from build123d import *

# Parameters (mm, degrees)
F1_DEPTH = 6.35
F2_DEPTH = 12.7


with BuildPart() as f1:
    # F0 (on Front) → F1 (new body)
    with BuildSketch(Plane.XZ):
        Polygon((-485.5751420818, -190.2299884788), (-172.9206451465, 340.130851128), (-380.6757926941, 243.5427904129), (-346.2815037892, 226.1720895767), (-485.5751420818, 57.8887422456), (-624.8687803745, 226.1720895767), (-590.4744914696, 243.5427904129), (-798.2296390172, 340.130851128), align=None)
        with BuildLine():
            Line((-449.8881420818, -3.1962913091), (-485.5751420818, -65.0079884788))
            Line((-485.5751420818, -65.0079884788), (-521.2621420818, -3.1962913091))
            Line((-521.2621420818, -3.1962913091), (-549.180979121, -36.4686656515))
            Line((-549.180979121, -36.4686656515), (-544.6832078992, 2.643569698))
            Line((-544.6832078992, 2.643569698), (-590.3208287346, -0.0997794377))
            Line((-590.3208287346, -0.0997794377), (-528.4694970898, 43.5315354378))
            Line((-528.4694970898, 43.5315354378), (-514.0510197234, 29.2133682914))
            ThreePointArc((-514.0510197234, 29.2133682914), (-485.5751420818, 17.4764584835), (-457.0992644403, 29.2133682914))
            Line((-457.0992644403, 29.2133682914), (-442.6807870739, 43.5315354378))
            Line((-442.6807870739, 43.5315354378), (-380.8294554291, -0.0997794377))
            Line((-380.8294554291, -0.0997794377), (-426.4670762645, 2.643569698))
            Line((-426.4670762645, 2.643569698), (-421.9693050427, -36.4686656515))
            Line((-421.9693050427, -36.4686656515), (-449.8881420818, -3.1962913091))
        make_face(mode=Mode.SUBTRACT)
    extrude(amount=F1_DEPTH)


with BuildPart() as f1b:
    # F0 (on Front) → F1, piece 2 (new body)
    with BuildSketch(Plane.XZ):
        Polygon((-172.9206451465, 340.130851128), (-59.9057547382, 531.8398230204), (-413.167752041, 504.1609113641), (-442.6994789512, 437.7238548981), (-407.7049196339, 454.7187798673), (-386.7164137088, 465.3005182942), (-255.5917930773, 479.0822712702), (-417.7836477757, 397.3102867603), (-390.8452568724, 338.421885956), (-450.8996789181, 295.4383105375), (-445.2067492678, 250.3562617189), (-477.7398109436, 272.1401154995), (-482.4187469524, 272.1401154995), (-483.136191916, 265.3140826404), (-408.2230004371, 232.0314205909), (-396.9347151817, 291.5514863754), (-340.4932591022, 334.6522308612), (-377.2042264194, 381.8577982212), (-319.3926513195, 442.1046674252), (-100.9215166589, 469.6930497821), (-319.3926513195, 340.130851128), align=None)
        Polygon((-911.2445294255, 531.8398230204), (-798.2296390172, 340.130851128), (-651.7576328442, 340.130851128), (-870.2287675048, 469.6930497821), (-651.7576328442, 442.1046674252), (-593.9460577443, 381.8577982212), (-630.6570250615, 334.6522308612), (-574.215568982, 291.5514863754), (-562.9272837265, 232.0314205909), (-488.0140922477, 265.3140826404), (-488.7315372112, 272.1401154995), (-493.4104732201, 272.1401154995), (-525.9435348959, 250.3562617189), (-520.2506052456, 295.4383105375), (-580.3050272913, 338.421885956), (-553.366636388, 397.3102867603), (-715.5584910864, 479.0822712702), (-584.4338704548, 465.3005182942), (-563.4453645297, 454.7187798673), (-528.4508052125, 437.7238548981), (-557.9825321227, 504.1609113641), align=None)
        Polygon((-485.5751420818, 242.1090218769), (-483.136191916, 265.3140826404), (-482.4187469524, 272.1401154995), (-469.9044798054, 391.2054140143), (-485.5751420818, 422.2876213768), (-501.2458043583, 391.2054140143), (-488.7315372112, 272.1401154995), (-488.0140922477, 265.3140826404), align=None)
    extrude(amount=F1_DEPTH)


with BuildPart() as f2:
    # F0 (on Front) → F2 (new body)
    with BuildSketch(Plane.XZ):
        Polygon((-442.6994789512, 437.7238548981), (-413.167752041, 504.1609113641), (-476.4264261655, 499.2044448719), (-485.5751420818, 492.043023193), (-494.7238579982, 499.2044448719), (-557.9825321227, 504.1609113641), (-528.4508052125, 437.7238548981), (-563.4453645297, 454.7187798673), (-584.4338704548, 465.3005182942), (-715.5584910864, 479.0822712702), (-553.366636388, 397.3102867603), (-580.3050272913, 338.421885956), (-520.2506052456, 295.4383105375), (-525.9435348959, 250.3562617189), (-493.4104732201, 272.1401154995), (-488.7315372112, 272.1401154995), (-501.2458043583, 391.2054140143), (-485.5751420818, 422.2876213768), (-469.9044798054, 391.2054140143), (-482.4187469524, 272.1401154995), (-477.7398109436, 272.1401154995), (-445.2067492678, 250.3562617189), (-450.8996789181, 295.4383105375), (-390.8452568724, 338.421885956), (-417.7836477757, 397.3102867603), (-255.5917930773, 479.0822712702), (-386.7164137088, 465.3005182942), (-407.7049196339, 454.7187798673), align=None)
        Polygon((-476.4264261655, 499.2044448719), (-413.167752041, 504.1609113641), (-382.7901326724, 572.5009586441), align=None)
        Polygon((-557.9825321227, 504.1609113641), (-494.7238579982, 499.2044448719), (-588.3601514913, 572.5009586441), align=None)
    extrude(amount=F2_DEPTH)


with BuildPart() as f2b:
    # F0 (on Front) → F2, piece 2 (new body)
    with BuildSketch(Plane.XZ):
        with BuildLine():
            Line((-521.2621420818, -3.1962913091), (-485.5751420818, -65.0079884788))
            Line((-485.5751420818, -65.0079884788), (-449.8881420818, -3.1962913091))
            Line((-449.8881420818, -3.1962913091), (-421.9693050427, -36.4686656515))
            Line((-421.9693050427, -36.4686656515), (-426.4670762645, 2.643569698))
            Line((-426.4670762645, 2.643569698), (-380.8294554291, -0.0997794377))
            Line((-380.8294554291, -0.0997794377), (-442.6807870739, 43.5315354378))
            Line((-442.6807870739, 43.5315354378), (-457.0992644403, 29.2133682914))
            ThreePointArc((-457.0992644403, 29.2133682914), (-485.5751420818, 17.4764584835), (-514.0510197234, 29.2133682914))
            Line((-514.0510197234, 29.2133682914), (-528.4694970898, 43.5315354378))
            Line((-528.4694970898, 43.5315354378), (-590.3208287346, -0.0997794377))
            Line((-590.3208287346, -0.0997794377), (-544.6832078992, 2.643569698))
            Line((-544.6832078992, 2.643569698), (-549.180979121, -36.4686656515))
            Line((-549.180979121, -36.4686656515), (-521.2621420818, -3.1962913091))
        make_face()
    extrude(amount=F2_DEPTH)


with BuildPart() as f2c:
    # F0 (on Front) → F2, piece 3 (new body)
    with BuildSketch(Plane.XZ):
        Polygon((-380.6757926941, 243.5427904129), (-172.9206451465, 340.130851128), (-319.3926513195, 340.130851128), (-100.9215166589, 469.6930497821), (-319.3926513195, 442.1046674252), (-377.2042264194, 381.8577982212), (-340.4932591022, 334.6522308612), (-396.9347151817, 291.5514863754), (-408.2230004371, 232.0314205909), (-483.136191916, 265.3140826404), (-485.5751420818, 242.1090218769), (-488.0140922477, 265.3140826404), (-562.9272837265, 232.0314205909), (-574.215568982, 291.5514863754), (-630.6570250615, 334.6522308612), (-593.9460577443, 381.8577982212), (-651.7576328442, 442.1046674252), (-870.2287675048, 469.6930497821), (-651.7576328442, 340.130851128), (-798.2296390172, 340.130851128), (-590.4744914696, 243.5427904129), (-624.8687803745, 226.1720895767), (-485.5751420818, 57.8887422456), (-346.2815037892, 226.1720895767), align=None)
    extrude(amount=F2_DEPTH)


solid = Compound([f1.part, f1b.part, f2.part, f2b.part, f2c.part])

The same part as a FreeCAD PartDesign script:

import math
import FreeCAD as App
import Part
import Sketcher

V = App.Vector
Q = App.Units.Quantity

doc = App.newDocument("Part")
body = doc.addObject("PartDesign::Body", "Body")

sketch1 = doc.addObject("Sketcher::SketchObject", "Sketch")
body.addObject(sketch1)
sketch1.AttachmentSupport = (doc.XZ_Plane, [""])
sketch1.MapMode = "FlatFace"
sketch1.addGeometry([
    Part.LineSegment(V(-486, -190, 0), V(-173, 340, 0)),
    Part.LineSegment(V(-173, 340, 0), V(-381, 244, 0)),
    Part.LineSegment(V(-381, 244, 0), V(-346, 226, 0)),
    Part.LineSegment(V(-346, 226, 0), V(-486, 58, 0)),
    Part.LineSegment(V(-486, 58, 0), V(-625, 226, 0)),
    Part.LineSegment(V(-625, 226, 0), V(-590, 244, 0)),
    Part.LineSegment(V(-590, 244, 0), V(-798, 340, 0)),
    Part.LineSegment(V(-798, 340, 0), V(-486, -190, 0)),
    Part.LineSegment(V(-422, -36, 0), V(-450, -3, 0)),
    Part.LineSegment(V(-450, -3, 0), V(-486, -65, 0)),
    Part.LineSegment(V(-486, -65, 0), V(-521, -3, 0)),
    Part.LineSegment(V(-521, -3, 0), V(-549, -36, 0)),
    Part.LineSegment(V(-549, -36, 0), V(-545, 3, 0)),
    Part.LineSegment(V(-545, 3, 0), V(-590, 0, 0)),
    Part.LineSegment(V(-590, 0, 0), V(-528, 44, 0)),
    Part.LineSegment(V(-528, 44, 0), V(-514, 29, 0)),
    Part.ArcOfCircle(Part.Circle(V(-486, 58, 0), V(0, 0, 1), 40), math.radians(-135), math.radians(-45)),
    Part.LineSegment(V(-457, 29, 0), V(-443, 44, 0)),
    Part.LineSegment(V(-443, 44, 0), V(-381, 0, 0)),
    Part.LineSegment(V(-381, 0, 0), V(-426, 3, 0)),
    Part.LineSegment(V(-426, 3, 0), V(-422, -36, 0)),
], False)
sketch1.addConstraint([
    Sketcher.Constraint("Coincident", 0, 2, 1, 1),
    Sketcher.Constraint("Coincident", 1, 2, 2, 1),
    Sketcher.Constraint("Coincident", 2, 2, 3, 1),
    Sketcher.Constraint("Coincident", 3, 2, 4, 1),
    Sketcher.Constraint("Coincident", 4, 2, 5, 1),
    Sketcher.Constraint("Coincident", 5, 2, 6, 1),
    Sketcher.Constraint("Coincident", 6, 2, 7, 1),
    Sketcher.Constraint("Coincident", 7, 2, 0, 1),
    Sketcher.Constraint("Coincident", 8, 2, 9, 1),
    Sketcher.Constraint("Coincident", 9, 2, 10, 1),
    Sketcher.Constraint("Coincident", 10, 2, 11, 1),
    Sketcher.Constraint("Coincident", 11, 2, 12, 1),
    Sketcher.Constraint("Coincident", 12, 2, 13, 1),
    Sketcher.Constraint("Coincident", 13, 2, 14, 1),
    Sketcher.Constraint("Coincident", 14, 2, 15, 1),
    Sketcher.Constraint("Tangent", 15, 2, 16, 1),
    Sketcher.Constraint("Tangent", 16, 2, 17, 1),
    Sketcher.Constraint("Coincident", 17, 2, 18, 1),
    Sketcher.Constraint("Coincident", 18, 2, 19, 1),
    Sketcher.Constraint("Coincident", 19, 2, 20, 1),
    Sketcher.Constraint("Coincident", 20, 2, 8, 1),
    Sketcher.Constraint("Coincident", 3, 2, 16, 3),
    Sketcher.Constraint("Horizontal", 2, 2, 4, 2),
    Sketcher.Constraint("Horizontal", 1, 2, 5, 2),
    Sketcher.Constraint("Horizontal", 0, 2, 6, 2),
    Sketcher.Constraint("Horizontal", 8, 2, 10, 2),
    Sketcher.Constraint("Horizontal", 15, 2, 16, 2),
    Sketcher.Constraint("Horizontal", 14, 2, 17, 2),
    Sketcher.Constraint("Horizontal", 13, 2, 18, 2),
    Sketcher.Constraint("Horizontal", 12, 2, 19, 2),
    Sketcher.Constraint("Horizontal", 11, 2, 20, 2),
    Sketcher.Constraint("Vertical", 3, 2, 7, 2),
    Sketcher.Constraint("Vertical", 7, 2, 9, 2),
    Sketcher.Constraint("Equal", 3, 4),
    Sketcher.Constraint("Equal", 2, 5),
    Sketcher.Constraint("Equal", 1, 6),
    Sketcher.Constraint("Equal", 9, 10),
    Sketcher.Constraint("Equal", 8, 11),
    Sketcher.Constraint("Equal", 14, 18),
    Sketcher.Constraint("Equal", 13, 19),
    Sketcher.Constraint("Angle", 8, Q("130 deg")),
    Sketcher.Constraint("Angle", 9, Q("-120 deg")),
    Sketcher.Constraint("Distance", 13, Q("1.8 in")),
    Sketcher.Constraint("Distance", 15, Q("0.8 in")),
    Sketcher.Constraint("Angle", 14, Q("35.2 deg")),
    Sketcher.Constraint("Angle", 15, Q("-44.8 deg")),
    Sketcher.Constraint("Distance", 8, Q("1.71 in")),
    Sketcher.Constraint("Distance", 9, Q("2.81 in")),
    Sketcher.Constraint("Distance", 12, Q("1.55 in")),
    Sketcher.Constraint("Distance", 14, Q("2.98 in")),
    Sketcher.Constraint("Angle", 12, Q("83.44 deg")),
    Sketcher.Constraint("Angle", 13, Q("-176.56 deg")),
    Sketcher.Constraint("DistanceY", 7, 2, 9, 2, Q("4.93 in")),
    Sketcher.Constraint("DistanceY", 2, 2, 1, 2, 17.370701),
    Sketcher.Constraint("DistanceX", 5, 2, 1, 2, 209.798699),
    Sketcher.Constraint("DistanceY", -1, 1, 0, 2, 340.130851),
    Sketcher.Constraint("DistanceY", -1, 1, 1, 2, 243.54279),
    Sketcher.Constraint("DistanceX", 4, 2, -1, 1, 624.86878),
    Sketcher.Constraint("DistanceX", 5, 2, -1, 1, 590.474491),
    Sketcher.Constraint("DistanceX", 6, 2, -1, 1, 798.229639),
    Sketcher.Constraint("DistanceY", 7, 2, -1, 1, 190.229988),
])
pad1 = doc.addObject("PartDesign::Pad", "Pad")
body.addObject(pad1)
pad1.Profile = sketch1
pad1.Length = Q("0.25 in")
body2 = doc.addObject("PartDesign::Body", "Body001")

sketch2 = doc.addObject("Sketcher::SketchObject", "Sketch001")
body2.addObject(sketch2)
sketch2.AttachmentSupport = (doc.getObject("XZ_Plane001"), [""])
sketch2.MapMode = "FlatFace"
sketch2.addGeometry([
    Part.LineSegment(V(-172.9, 340.1, 0), V(-59.9, 531.8, 0)),
    Part.LineSegment(V(-59.9, 531.8, 0), V(-413.2, 504.2, 0)),
    Part.LineSegment(V(-413.2, 504.2, 0), V(-442.7, 437.7, 0)),
    Part.LineSegment(V(-442.7, 437.7, 0), V(-407.7, 454.7, 0)),
    Part.LineSegment(V(-407.7, 454.7, 0), V(-386.7, 465.3, 0)),
    Part.LineSegment(V(-386.7, 465.3, 0), V(-255.6, 479.1, 0)),
    Part.LineSegment(V(-255.6, 479.1, 0), V(-417.8, 397.3, 0)),
    Part.LineSegment(V(-417.8, 397.3, 0), V(-390.8, 338.4, 0)),
    Part.LineSegment(V(-390.8, 338.4, 0), V(-450.9, 295.4, 0)),
    Part.LineSegment(V(-450.9, 295.4, 0), V(-445.2, 250.4, 0)),
    Part.LineSegment(V(-445.2, 250.4, 0), V(-477.7, 272.1, 0)),
    Part.LineSegment(V(-477.7, 272.1, 0), V(-482.4, 272.1, 0)),
    Part.LineSegment(V(-482.4, 272.1, 0), V(-469.9, 391.2, 0)),
    Part.LineSegment(V(-469.9, 391.2, 0), V(-485.6, 422.3, 0)),
    Part.LineSegment(V(-485.6, 422.3, 0), V(-501.2, 391.2, 0)),
    Part.LineSegment(V(-501.2, 391.2, 0), V(-488.7, 272.1, 0)),
    Part.LineSegment(V(-488.7, 272.1, 0), V(-493.4, 272.1, 0)),
    Part.LineSegment(V(-493.4, 272.1, 0), V(-525.9, 250.4, 0)),
    Part.LineSegment(V(-525.9, 250.4, 0), V(-520.3, 295.4, 0)),
    Part.LineSegment(V(-520.3, 295.4, 0), V(-580.3, 338.4, 0)),
    Part.LineSegment(V(-580.3, 338.4, 0), V(-553.4, 397.3, 0)),
    Part.LineSegment(V(-553.4, 397.3, 0), V(-715.6, 479.1, 0)),
    Part.LineSegment(V(-715.6, 479.1, 0), V(-584.4, 465.3, 0)),
    Part.LineSegment(V(-584.4, 465.3, 0), V(-563.4, 454.7, 0)),
    Part.LineSegment(V(-563.4, 454.7, 0), V(-528.5, 437.7, 0)),
    Part.LineSegment(V(-528.5, 437.7, 0), V(-558, 504.2, 0)),
    Part.LineSegment(V(-558, 504.2, 0), V(-911.2, 531.8, 0)),
    Part.LineSegment(V(-911.2, 531.8, 0), V(-798.2, 340.1, 0)),
    Part.LineSegment(V(-798.2, 340.1, 0), V(-651.8, 340.1, 0)),
    Part.LineSegment(V(-651.8, 340.1, 0), V(-870.2, 469.7, 0)),
    Part.LineSegment(V(-870.2, 469.7, 0), V(-651.8, 442.1, 0)),
    Part.LineSegment(V(-651.8, 442.1, 0), V(-593.9, 381.9, 0)),
    Part.LineSegment(V(-593.9, 381.9, 0), V(-630.7, 334.7, 0)),
    Part.LineSegment(V(-630.7, 334.7, 0), V(-574.2, 291.6, 0)),
    Part.LineSegment(V(-574.2, 291.6, 0), V(-562.9, 232, 0)),
    Part.LineSegment(V(-562.9, 232, 0), V(-488, 265.3, 0)),
    Part.LineSegment(V(-488, 265.3, 0), V(-485.6, 242.1, 0)),
    Part.LineSegment(V(-485.6, 242.1, 0), V(-483.1, 265.3, 0)),
    Part.LineSegment(V(-483.1, 265.3, 0), V(-408.2, 232, 0)),
    Part.LineSegment(V(-408.2, 232, 0), V(-396.9, 291.6, 0)),
    Part.LineSegment(V(-396.9, 291.6, 0), V(-340.5, 334.7, 0)),
    Part.LineSegment(V(-340.5, 334.7, 0), V(-377.2, 381.9, 0)),
    Part.LineSegment(V(-377.2, 381.9, 0), V(-319.4, 442.1, 0)),
    Part.LineSegment(V(-319.4, 442.1, 0), V(-100.9, 469.7, 0)),
    Part.LineSegment(V(-100.9, 469.7, 0), V(-319.4, 340.1, 0)),
    Part.LineSegment(V(-319.4, 340.1, 0), V(-172.9, 340.1, 0)),
], False)
sketch2.addConstraint([
    Sketcher.Constraint("Coincident", 0, 2, 1, 1),
    Sketcher.Constraint("Coincident", 1, 2, 2, 1),
    Sketcher.Constraint("Coincident", 2, 2, 3, 1),
    Sketcher.Constraint("Coincident", 3, 2, 4, 1),
    Sketcher.Constraint("Coincident", 4, 2, 5, 1),
    Sketcher.Constraint("Coincident", 5, 2, 6, 1),
    Sketcher.Constraint("Coincident", 6, 2, 7, 1),
    Sketcher.Constraint("Coincident", 7, 2, 8, 1),
    Sketcher.Constraint("Coincident", 8, 2, 9, 1),
    Sketcher.Constraint("Coincident", 9, 2, 10, 1),
    Sketcher.Constraint("Coincident", 10, 2, 11, 1),
    Sketcher.Constraint("Coincident", 11, 2, 12, 1),
    Sketcher.Constraint("Coincident", 12, 2, 13, 1),
    Sketcher.Constraint("Coincident", 13, 2, 14, 1),
    Sketcher.Constraint("Coincident", 14, 2, 15, 1),
    Sketcher.Constraint("Coincident", 15, 2, 16, 1),
    Sketcher.Constraint("Coincident", 16, 2, 17, 1),
    Sketcher.Constraint("Coincident", 17, 2, 18, 1),
    Sketcher.Constraint("Coincident", 18, 2, 19, 1),
    Sketcher.Constraint("Coincident", 19, 2, 20, 1),
    Sketcher.Constraint("Coincident", 20, 2, 21, 1),
    Sketcher.Constraint("Coincident", 21, 2, 22, 1),
    Sketcher.Constraint("Coincident", 22, 2, 23, 1),
    Sketcher.Constraint("Coincident", 23, 2, 24, 1),
    Sketcher.Constraint("Coincident", 24, 2, 25, 1),
    Sketcher.Constraint("Coincident", 25, 2, 26, 1),
    Sketcher.Constraint("Coincident", 26, 2, 27, 1),
    Sketcher.Constraint("Coincident", 27, 2, 28, 1),
    Sketcher.Constraint("Coincident", 28, 2, 29, 1),
    Sketcher.Constraint("Coincident", 29, 2, 30, 1),
    Sketcher.Constraint("Coincident", 30, 2, 31, 1),
    Sketcher.Constraint("Coincident", 31, 2, 32, 1),
    Sketcher.Constraint("Coincident", 32, 2, 33, 1),
    Sketcher.Constraint("Coincident", 33, 2, 34, 1),
    Sketcher.Constraint("Coincident", 34, 2, 35, 1),
    Sketcher.Constraint("Coincident", 35, 2, 36, 1),
    Sketcher.Constraint("Coincident", 36, 2, 37, 1),
    Sketcher.Constraint("Coincident", 37, 2, 38, 1),
    Sketcher.Constraint("Coincident", 38, 2, 39, 1),
    Sketcher.Constraint("Coincident", 39, 2, 40, 1),
    Sketcher.Constraint("Coincident", 40, 2, 41, 1),
    Sketcher.Constraint("Coincident", 41, 2, 42, 1),
    Sketcher.Constraint("Coincident", 42, 2, 43, 1),
    Sketcher.Constraint("Coincident", 43, 2, 44, 1),
    Sketcher.Constraint("Coincident", 44, 2, 45, 1),
    Sketcher.Constraint("Coincident", 45, 2, 0, 1),
    Sketcher.Constraint("Horizontal", 11),
    Sketcher.Constraint("Horizontal", 16),
    Sketcher.Constraint("Horizontal", 28),
    Sketcher.Constraint("Horizontal", 45),
    Sketcher.Constraint("Parallel", 4, 6),
    Sketcher.Constraint("Perpendicular", 6, 13),
    Sketcher.Constraint("Perpendicular", 5, 15),
    Sketcher.Constraint("Perpendicular", 14, 21),
    Sketcher.Constraint("Perpendicular", 12, 22),
    Sketcher.Constraint("Parallel", 21, 23),
    Sketcher.Constraint("Perpendicular", 18, 30),
    Sketcher.Constraint("Parallel", 15, 36),
    Sketcher.Constraint("Perpendicular", 22, 37),
    Sketcher.Constraint("Perpendicular", 9, 43),
    Sketcher.Constraint("Horizontal", 12, 2, 14, 2),
    Sketcher.Constraint("Horizontal", 11, 2, 15, 2),
    Sketcher.Constraint("Horizontal", 9, 2, 17, 2),
    Sketcher.Constraint("Horizontal", 8, 2, 18, 2),
    Sketcher.Constraint("Horizontal", 7, 2, 19, 2),
    Sketcher.Constraint("Horizontal", 6, 2, 20, 2),
    Sketcher.Constraint("Horizontal", 5, 2, 21, 2),
    Sketcher.Constraint("Horizontal", 4, 2, 22, 2),
    Sketcher.Constraint("Horizontal", 3, 2, 23, 2),
    Sketcher.Constraint("Horizontal", 2, 2, 24, 2),
    Sketcher.Constraint("Horizontal", 1, 2, 25, 2),
    Sketcher.Constraint("Horizontal", 0, 2, 26, 2),
    Sketcher.Constraint("Horizontal", 35, 2, 37, 2),
    Sketcher.Constraint("Horizontal", 34, 2, 38, 2),
    Sketcher.Constraint("Horizontal", 33, 2, 39, 2),
    Sketcher.Constraint("Horizontal", 32, 2, 40, 2),
    Sketcher.Constraint("Horizontal", 31, 2, 41, 2),
    Sketcher.Constraint("Horizontal", 30, 2, 42, 2),
    Sketcher.Constraint("Horizontal", 29, 2, 43, 2),
    Sketcher.Constraint("Horizontal", 28, 2, 44, 2),
    Sketcher.Constraint("Vertical", 28, 2, 30, 2),
    Sketcher.Constraint("Vertical", 13, 2, 36, 2),
    Sketcher.Constraint("Vertical", 42, 2, 44, 2),
    Sketcher.Constraint("Equal", 11, 16),
    Sketcher.Constraint("Equal", 28, 45),
    Sketcher.Constraint("Equal", 13, 14),
    Sketcher.Constraint("Equal", 12, 15),
    Sketcher.Constraint("Equal", 10, 17),
    Sketcher.Constraint("Equal", 8, 19),
    Sketcher.Constraint("Equal", 7, 20),
    Sketcher.Constraint("Equal", 3, 24),
    Sketcher.Constraint("Equal", 2, 25),
    Sketcher.Constraint("Equal", 1, 26),
    Sketcher.Constraint("Equal", 0, 27),
    Sketcher.Constraint("Equal", 35, 38),
    Sketcher.Constraint("Equal", 34, 39),
    Sketcher.Constraint("Equal", 33, 40),
    Sketcher.Constraint("Equal", 32, 41),
    Sketcher.Constraint("Equal", 31, 42),
    Sketcher.Constraint("Distance", 29, Q("10 in")),
    Sketcher.Constraint("Angle", 5, Q("6 deg")),
    Sketcher.Constraint("Distance", 7, 64.757398),
    Sketcher.Constraint("DistanceY", -1, 1, 31, 2, 381.857798),
    Sketcher.Constraint("DistanceX", 38, 2, -1, 1, 408.223),
    Sketcher.Constraint("DistanceY", 7, 2, 6, 2, 58.888401),
    Sketcher.Constraint("DistanceX", 8, 2, 2, 2, 8.2002),
    Sketcher.Constraint("DistanceX", 9, 2, 6, 2, 27.423101),
    Sketcher.Constraint("DistanceX", 11, 2, 6, 2, 64.635099),
    Sketcher.Constraint("DistanceX", 12, 2, 2, 2, 27.205001),
    Sketcher.Constraint("DistanceY", 27, 2, 29, 2, 129.562199),
    Sketcher.Constraint("DistanceY", 33, 2, 19, 2, 46.8704),
    Sketcher.Constraint("DistanceX", 35, 2, 37, 2, 4.8779),
    Sketcher.Constraint("DistanceY", 38, 2, 36, 2, 10.077601),
    Sketcher.Constraint("Distance", 2, 72.70492),
    Sketcher.Constraint("Distance", 3, 38.903042),
    Sketcher.Constraint("Distance", 5, 131.846892),
    Sketcher.Constraint("Distance", 10, 39.152732),
    Sketcher.Constraint("Distance", 33, 71.016281),
    Sketcher.Constraint("Distance", 34, 60.58105),
    Sketcher.Constraint("Distance", 35, 81.97391),
    Sketcher.Constraint("DistanceX", 11, 2, 11, 1, 4.678936),
    Sketcher.Constraint("DistanceX", 28, 1, 28, 2, 146.472006),
    Sketcher.Constraint("DistanceY", -1, 1, 1, 2, 504.160911),
    Sketcher.Constraint("DistanceX", 2, 2, -1, 1, 442.699479),
    Sketcher.Constraint("DistanceX", 3, 2, -1, 1, 407.70492),
    Sketcher.Constraint("DistanceY", -1, 1, 3, 2, 454.71878),
    Sketcher.Constraint("DistanceY", -1, 1, 4, 2, 465.300518),
    Sketcher.Constraint("DistanceY", -1, 1, 8, 2, 295.438311),
    Sketcher.Constraint("DistanceX", 9, 2, -1, 1, 445.206749),
    Sketcher.Constraint("DistanceY", -1, 1, 9, 2, 250.356262),
    Sketcher.Constraint("DistanceY", -1, 1, 13, 2, 422.287621),
    Sketcher.Constraint("DistanceX", 26, 2, -1, 1, 911.244529),
    Sketcher.Constraint("DistanceX", 27, 2, -1, 1, 798.229639),
    Sketcher.Constraint("DistanceY", -1, 1, 27, 2, 340.130851),
    Sketcher.Constraint("DistanceY", -1, 1, 32, 2, 334.652231),
    Sketcher.Constraint("DistanceX", 33, 2, -1, 1, 574.215569),
    Sketcher.Constraint("DistanceY", 1, 2, 0, 2, 27.678912),
    Sketcher.Constraint("DistanceX", 31, 2, 20, 2, 40.579421),
])
pad2 = doc.addObject("PartDesign::Pad", "Pad001")
body2.addObject(pad2)
pad2.Profile = sketch2
pad2.Length = Q("0.25 in")
body3 = doc.addObject("PartDesign::Body", "Body002")

sketch3 = doc.addObject("Sketcher::SketchObject", "Sketch002")
body3.addObject(sketch3)
sketch3.AttachmentSupport = (doc.getObject("XZ_Plane002"), [""])
sketch3.MapMode = "FlatFace"
sketch3.addGeometry([
    Part.LineSegment(V(-442.7, 437.7, 0), V(-413.2, 504.2, 0)),
    Part.LineSegment(V(-413.2, 504.2, 0), V(-382.8, 572.5, 0)),
    Part.LineSegment(V(-382.8, 572.5, 0), V(-476.4, 499.2, 0)),
    Part.LineSegment(V(-476.4, 499.2, 0), V(-485.6, 492, 0)),
    Part.LineSegment(V(-485.6, 492, 0), V(-494.7, 499.2, 0)),
    Part.LineSegment(V(-494.7, 499.2, 0), V(-588.4, 572.5, 0)),
    Part.LineSegment(V(-588.4, 572.5, 0), V(-558, 504.2, 0)),
    Part.LineSegment(V(-558, 504.2, 0), V(-528.5, 437.7, 0)),
    Part.LineSegment(V(-528.5, 437.7, 0), V(-563.4, 454.7, 0)),
    Part.LineSegment(V(-563.4, 454.7, 0), V(-584.4, 465.3, 0)),
    Part.LineSegment(V(-584.4, 465.3, 0), V(-715.6, 479.1, 0)),
    Part.LineSegment(V(-715.6, 479.1, 0), V(-553.4, 397.3, 0)),
    Part.LineSegment(V(-553.4, 397.3, 0), V(-580.3, 338.4, 0)),
    Part.LineSegment(V(-580.3, 338.4, 0), V(-520.3, 295.4, 0)),
    Part.LineSegment(V(-520.3, 295.4, 0), V(-525.9, 250.4, 0)),
    Part.LineSegment(V(-525.9, 250.4, 0), V(-493.4, 272.1, 0)),
    Part.LineSegment(V(-493.4, 272.1, 0), V(-488.7, 272.1, 0)),
    Part.LineSegment(V(-488.7, 272.1, 0), V(-501.2, 391.2, 0)),
    Part.LineSegment(V(-501.2, 391.2, 0), V(-485.6, 422.3, 0)),
    Part.LineSegment(V(-485.6, 422.3, 0), V(-469.9, 391.2, 0)),
    Part.LineSegment(V(-469.9, 391.2, 0), V(-482.4, 272.1, 0)),
    Part.LineSegment(V(-482.4, 272.1, 0), V(-477.7, 272.1, 0)),
    Part.LineSegment(V(-477.7, 272.1, 0), V(-445.2, 250.4, 0)),
    Part.LineSegment(V(-445.2, 250.4, 0), V(-450.9, 295.4, 0)),
    Part.LineSegment(V(-450.9, 295.4, 0), V(-390.8, 338.4, 0)),
    Part.LineSegment(V(-390.8, 338.4, 0), V(-417.8, 397.3, 0)),
    Part.LineSegment(V(-417.8, 397.3, 0), V(-255.6, 479.1, 0)),
    Part.LineSegment(V(-255.6, 479.1, 0), V(-386.7, 465.3, 0)),
    Part.LineSegment(V(-386.7, 465.3, 0), V(-407.7, 454.7, 0)),
    Part.LineSegment(V(-407.7, 454.7, 0), V(-442.7, 437.7, 0)),
], False)
sketch3.addConstraint([
    Sketcher.Constraint("Coincident", 0, 2, 1, 1),
    Sketcher.Constraint("Coincident", 1, 2, 2, 1),
    Sketcher.Constraint("Coincident", 2, 2, 3, 1),
    Sketcher.Constraint("Coincident", 3, 2, 4, 1),
    Sketcher.Constraint("Coincident", 4, 2, 5, 1),
    Sketcher.Constraint("Coincident", 5, 2, 6, 1),
    Sketcher.Constraint("Coincident", 6, 2, 7, 1),
    Sketcher.Constraint("Coincident", 7, 2, 8, 1),
    Sketcher.Constraint("Coincident", 8, 2, 9, 1),
    Sketcher.Constraint("Coincident", 9, 2, 10, 1),
    Sketcher.Constraint("Coincident", 10, 2, 11, 1),
    Sketcher.Constraint("Coincident", 11, 2, 12, 1),
    Sketcher.Constraint("Coincident", 12, 2, 13, 1),
    Sketcher.Constraint("Coincident", 13, 2, 14, 1),
    Sketcher.Constraint("Coincident", 14, 2, 15, 1),
    Sketcher.Constraint("Coincident", 15, 2, 16, 1),
    Sketcher.Constraint("Coincident", 16, 2, 17, 1),
    Sketcher.Constraint("Coincident", 17, 2, 18, 1),
    Sketcher.Constraint("Coincident", 18, 2, 19, 1),
    Sketcher.Constraint("Coincident", 19, 2, 20, 1),
    Sketcher.Constraint("Coincident", 20, 2, 21, 1),
    Sketcher.Constraint("Coincident", 21, 2, 22, 1),
    Sketcher.Constraint("Coincident", 22, 2, 23, 1),
    Sketcher.Constraint("Coincident", 23, 2, 24, 1),
    Sketcher.Constraint("Coincident", 24, 2, 25, 1),
    Sketcher.Constraint("Coincident", 25, 2, 26, 1),
    Sketcher.Constraint("Coincident", 26, 2, 27, 1),
    Sketcher.Constraint("Coincident", 27, 2, 28, 1),
    Sketcher.Constraint("Coincident", 28, 2, 29, 1),
    Sketcher.Constraint("Coincident", 29, 2, 0, 1),
    Sketcher.Constraint("Horizontal", 16),
    Sketcher.Constraint("Horizontal", 21),
    Sketcher.Constraint("Parallel", 0, 1),
    Sketcher.Constraint("Parallel", 2, 3),
    Sketcher.Constraint("Parallel", 4, 5),
    Sketcher.Constraint("Parallel", 6, 7),
    Sketcher.Constraint("Parallel", 9, 11),
    Sketcher.Constraint("Perpendicular", 11, 18),
    Sketcher.Constraint("Perpendicular", 10, 20),
    Sketcher.Constraint("Perpendicular", 19, 26),
    Sketcher.Constraint("Perpendicular", 17, 27),
    Sketcher.Constraint("Parallel", 26, 28),
    Sketcher.Constraint("Horizontal", 2, 2, 4, 2),
    Sketcher.Constraint("Horizontal", 1, 2, 5, 2),
    Sketcher.Constraint("Horizontal", 0, 2, 6, 2),
    Sketcher.Constraint("Horizontal", 17, 2, 19, 2),
    Sketcher.Constraint("Horizontal", 16, 2, 20, 2),
    Sketcher.Constraint("Horizontal", 14, 2, 22, 2),
    Sketcher.Constraint("Horizontal", 13, 2, 23, 2),
    Sketcher.Constraint("Horizontal", 12, 2, 24, 2),
    Sketcher.Constraint("Horizontal", 11, 2, 25, 2),
    Sketcher.Constraint("Horizontal", 10, 2, 26, 2),
    Sketcher.Constraint("Horizontal", 9, 2, 27, 2),
    Sketcher.Constraint("Horizontal", 8, 2, 28, 2),
    Sketcher.Constraint("Horizontal", 7, 2, 29, 2),
    Sketcher.Constraint("Vertical", 3, 2, 18, 2),
    Sketcher.Constraint("Equal", 16, 21),
    Sketcher.Constraint("Equal", 3, 4),
    Sketcher.Constraint("Equal", 1, 6),
    Sketcher.Constraint("Equal", 18, 19),
    Sketcher.Constraint("Equal", 17, 20),
    Sketcher.Constraint("Equal", 15, 22),
    Sketcher.Constraint("Equal", 14, 23),
    Sketcher.Constraint("Equal", 13, 24),
    Sketcher.Constraint("Equal", 12, 25),
    Sketcher.Constraint("Angle", 10, Q("174 deg")),
    Sketcher.Constraint("Distance", 12, 64.757398),
    Sketcher.Constraint("DistanceX", 5, 2, 0, 2, 175.192399),
    Sketcher.Constraint("DistanceY", 12, 2, 11, 2, 58.888401),
    Sketcher.Constraint("DistanceX", 7, 2, 13, 2, 8.2002),
    Sketcher.Constraint("DistanceX", 11, 2, 14, 2, 27.423101),
    Sketcher.Constraint("DistanceX", 11, 2, 16, 2, 64.635099),
    Sketcher.Constraint("DistanceX", 7, 2, 17, 2, 27.205001),
    Sketcher.Constraint("DistanceY", 18, 2, 3, 2, 69.755402),
    Sketcher.Constraint("Distance", 0, 72.70492),
    Sketcher.Constraint("Distance", 8, 38.903042),
    Sketcher.Constraint("Distance", 10, 131.846892),
    Sketcher.Constraint("Distance", 15, 39.152732),
    Sketcher.Constraint("DistanceX", 16, 1, 16, 2, 4.678936),
    Sketcher.Constraint("DistanceY", -1, 1, 0, 2, 504.160911),
    Sketcher.Constraint("DistanceY", -1, 1, 1, 2, 572.500959),
    Sketcher.Constraint("DistanceX", 5, 2, -1, 1, 588.360151),
    Sketcher.Constraint("DistanceY", -1, 1, 8, 2, 454.71878),
    Sketcher.Constraint("DistanceX", 9, 2, -1, 1, 584.43387),
    Sketcher.Constraint("DistanceY", -1, 1, 9, 2, 465.300518),
    Sketcher.Constraint("DistanceY", -1, 1, 13, 2, 295.438311),
    Sketcher.Constraint("DistanceY", -1, 1, 14, 2, 250.356262),
    Sketcher.Constraint("DistanceY", -1, 1, 18, 2, 422.287621),
    Sketcher.Constraint("DistanceX", 19, 2, -1, 1, 469.90448),
    Sketcher.Constraint("DistanceY", 3, 2, 2, 2, 7.161422),
])
pad3 = doc.addObject("PartDesign::Pad", "Pad002")
body3.addObject(pad3)
pad3.Profile = sketch3
pad3.Length = Q("0.5 in")
body4 = doc.addObject("PartDesign::Body", "Body003")

sketch4 = doc.addObject("Sketcher::SketchObject", "Sketch003")
body4.addObject(sketch4)
sketch4.AttachmentSupport = (doc.getObject("XZ_Plane003"), [""])
sketch4.MapMode = "FlatFace"
sketch4.addGeometry([
    Part.LineSegment(V(-521, -3, 0), V(-486, -65, 0)),
    Part.LineSegment(V(-486, -65, 0), V(-450, -3, 0)),
    Part.LineSegment(V(-450, -3, 0), V(-422, -36, 0)),
    Part.LineSegment(V(-422, -36, 0), V(-426, 3, 0)),
    Part.LineSegment(V(-426, 3, 0), V(-381, 0, 0)),
    Part.LineSegment(V(-381, 0, 0), V(-443, 44, 0)),
    Part.LineSegment(V(-443, 44, 0), V(-457, 29, 0)),
    Part.ArcOfCircle(Part.Circle(V(-486, 58, 0), V(0, 0, 1), 40), math.radians(-135), math.radians(-45)),
    Part.LineSegment(V(-514, 29, 0), V(-528, 44, 0)),
    Part.LineSegment(V(-528, 44, 0), V(-590, 0, 0)),
    Part.LineSegment(V(-590, 0, 0), V(-545, 3, 0)),
    Part.LineSegment(V(-545, 3, 0), V(-549, -36, 0)),
    Part.LineSegment(V(-549, -36, 0), V(-521, -3, 0)),
], False)
sketch4.addConstraint([
    Sketcher.Constraint("Coincident", 0, 2, 1, 1),
    Sketcher.Constraint("Coincident", 1, 2, 2, 1),
    Sketcher.Constraint("Coincident", 2, 2, 3, 1),
    Sketcher.Constraint("Coincident", 3, 2, 4, 1),
    Sketcher.Constraint("Coincident", 4, 2, 5, 1),
    Sketcher.Constraint("Coincident", 5, 2, 6, 1),
    Sketcher.Constraint("Tangent", 6, 2, 7, 2),
    Sketcher.Constraint("Tangent", 7, 1, 8, 1),
    Sketcher.Constraint("Coincident", 8, 2, 9, 1),
    Sketcher.Constraint("Coincident", 9, 2, 10, 1),
    Sketcher.Constraint("Coincident", 10, 2, 11, 1),
    Sketcher.Constraint("Coincident", 11, 2, 12, 1),
    Sketcher.Constraint("Coincident", 12, 2, 0, 1),
    Sketcher.Constraint("Horizontal", 6, 2, 7, 1),
    Sketcher.Constraint("Horizontal", 5, 2, 8, 2),
    Sketcher.Constraint("Horizontal", 4, 2, 9, 2),
    Sketcher.Constraint("Horizontal", 3, 2, 10, 2),
    Sketcher.Constraint("Horizontal", 2, 2, 11, 2),
    Sketcher.Constraint("Horizontal", 1, 2, 12, 2),
    Sketcher.Constraint("Vertical", 7, 3, 0, 2),
    Sketcher.Constraint("Equal", 0, 1),
    Sketcher.Constraint("Equal", 5, 9),
    Sketcher.Constraint("Equal", 4, 10),
    Sketcher.Constraint("Equal", 3, 11),
    Sketcher.Constraint("Angle", 0, Q("-60 deg")),
    Sketcher.Constraint("Angle", 2, Q("-50 deg")),
    Sketcher.Constraint("Distance", 4, Q("1.8 in")),
    Sketcher.Constraint("Distance", 6, Q("0.8 in")),
    Sketcher.Constraint("Angle", 5, Q("144.8 deg")),
    Sketcher.Constraint("Angle", 6, Q("-135.2 deg")),
    Sketcher.Constraint("Distance", 0, Q("2.81 in")),
    Sketcher.Constraint("Distance", 2, Q("1.71 in")),
    Sketcher.Constraint("Distance", 3, Q("1.55 in")),
    Sketcher.Constraint("Distance", 5, Q("2.98 in")),
    Sketcher.Constraint("Angle", 3, Q("96.56 deg")),
    Sketcher.Constraint("Angle", 4, Q("-3.44 deg")),
    Sketcher.Constraint("DistanceY", 0, 2, -1, 1, 65.007988),
    Sketcher.Constraint("DistanceX", 7, 1, -1, 1, 514.05102),
])
pad4 = doc.addObject("PartDesign::Pad", "Pad003")
body4.addObject(pad4)
pad4.Profile = sketch4
pad4.Length = Q("0.5 in")
body5 = doc.addObject("PartDesign::Body", "Body004")

sketch5 = doc.addObject("Sketcher::SketchObject", "Sketch004")
body5.addObject(sketch5)
sketch5.AttachmentSupport = (doc.getObject("XZ_Plane004"), [""])
sketch5.MapMode = "FlatFace"
sketch5.addGeometry([
    Part.LineSegment(V(-381, 244, 0), V(-173, 340, 0)),
    Part.LineSegment(V(-173, 340, 0), V(-319, 340, 0)),
    Part.LineSegment(V(-319, 340, 0), V(-101, 470, 0)),
    Part.LineSegment(V(-101, 470, 0), V(-319, 442, 0)),
    Part.LineSegment(V(-319, 442, 0), V(-377, 382, 0)),
    Part.LineSegment(V(-377, 382, 0), V(-340, 335, 0)),
    Part.LineSegment(V(-340, 335, 0), V(-397, 292, 0)),
    Part.LineSegment(V(-397, 292, 0), V(-408, 232, 0)),
    Part.LineSegment(V(-408, 232, 0), V(-483, 265, 0)),
    Part.LineSegment(V(-483, 265, 0), V(-486, 242, 0)),
    Part.LineSegment(V(-486, 242, 0), V(-488, 265, 0)),
    Part.LineSegment(V(-488, 265, 0), V(-563, 232, 0)),
    Part.LineSegment(V(-563, 232, 0), V(-574, 292, 0)),
    Part.LineSegment(V(-574, 292, 0), V(-631, 335, 0)),
    Part.LineSegment(V(-631, 335, 0), V(-594, 382, 0)),
    Part.LineSegment(V(-594, 382, 0), V(-652, 442, 0)),
    Part.LineSegment(V(-652, 442, 0), V(-870, 470, 0)),
    Part.LineSegment(V(-870, 470, 0), V(-652, 340, 0)),
    Part.LineSegment(V(-652, 340, 0), V(-798, 340, 0)),
    Part.LineSegment(V(-798, 340, 0), V(-590, 244, 0)),
    Part.LineSegment(V(-590, 244, 0), V(-625, 226, 0)),
    Part.LineSegment(V(-625, 226, 0), V(-486, 58, 0)),
    Part.LineSegment(V(-486, 58, 0), V(-346, 226, 0)),
    Part.LineSegment(V(-346, 226, 0), V(-381, 244, 0)),
], False)
sketch5.addConstraint([
    Sketcher.Constraint("Coincident", 0, 2, 1, 1),
    Sketcher.Constraint("Coincident", 1, 2, 2, 1),
    Sketcher.Constraint("Coincident", 2, 2, 3, 1),
    Sketcher.Constraint("Coincident", 3, 2, 4, 1),
    Sketcher.Constraint("Coincident", 4, 2, 5, 1),
    Sketcher.Constraint("Coincident", 5, 2, 6, 1),
    Sketcher.Constraint("Coincident", 6, 2, 7, 1),
    Sketcher.Constraint("Coincident", 7, 2, 8, 1),
    Sketcher.Constraint("Coincident", 8, 2, 9, 1),
    Sketcher.Constraint("Coincident", 9, 2, 10, 1),
    Sketcher.Constraint("Coincident", 10, 2, 11, 1),
    Sketcher.Constraint("Coincident", 11, 2, 12, 1),
    Sketcher.Constraint("Coincident", 12, 2, 13, 1),
    Sketcher.Constraint("Coincident", 13, 2, 14, 1),
    Sketcher.Constraint("Coincident", 14, 2, 15, 1),
    Sketcher.Constraint("Coincident", 15, 2, 16, 1),
    Sketcher.Constraint("Coincident", 16, 2, 17, 1),
    Sketcher.Constraint("Coincident", 17, 2, 18, 1),
    Sketcher.Constraint("Coincident", 18, 2, 19, 1),
    Sketcher.Constraint("Coincident", 19, 2, 20, 1),
    Sketcher.Constraint("Coincident", 20, 2, 21, 1),
    Sketcher.Constraint("Coincident", 21, 2, 22, 1),
    Sketcher.Constraint("Coincident", 22, 2, 23, 1),
    Sketcher.Constraint("Coincident", 23, 2, 0, 1),
    Sketcher.Constraint("Horizontal", 1),
    Sketcher.Constraint("Horizontal", 18),
    Sketcher.Constraint("Horizontal", 8, 2, 10, 2),
    Sketcher.Constraint("Horizontal", 7, 2, 11, 2),
    Sketcher.Constraint("Horizontal", 6, 2, 12, 2),
    Sketcher.Constraint("Horizontal", 5, 2, 13, 2),
    Sketcher.Constraint("Horizontal", 4, 2, 14, 2),
    Sketcher.Constraint("Horizontal", 3, 2, 15, 2),
    Sketcher.Constraint("Horizontal", 2, 2, 16, 2),
    Sketcher.Constraint("Horizontal", 1, 2, 17, 2),
    Sketcher.Constraint("Horizontal", 20, 2, 22, 2),
    Sketcher.Constraint("Horizontal", 19, 2, 23, 2),
    Sketcher.Constraint("Vertical", 1, 2, 3, 2),
    Sketcher.Constraint("Vertical", 15, 2, 17, 2),
    Sketcher.Constraint("Vertical", 9, 2, 21, 2),
    Sketcher.Constraint("Equal", 1, 18),
    Sketcher.Constraint("Equal", 9, 10),
    Sketcher.Constraint("Equal", 8, 11),
    Sketcher.Constraint("Equal", 7, 12),
    Sketcher.Constraint("Equal", 6, 13),
    Sketcher.Constraint("Equal", 5, 14),
    Sketcher.Constraint("Equal", 4, 15),
    Sketcher.Constraint("Equal", 3, 16),
    Sketcher.Constraint("Equal", 0, 19),
    Sketcher.Constraint("Equal", 21, 22),
    Sketcher.Constraint("Distance", 2, Q("10 in")),
    Sketcher.Constraint("Angle", 9, Q("-96 deg")),
    Sketcher.Constraint("DistanceY", -1, 1, 4, 2, 381.857798),
    Sketcher.Constraint("DistanceX", 7, 2, -1, 1, 408.223),
    Sketcher.Constraint("DistanceY", 0, 2, 2, 2, 129.562199),
    Sketcher.Constraint("DistanceY", 7, 2, 9, 2, 10.077601),
    Sketcher.Constraint("DistanceX", 10, 2, 8, 2, 4.8779),
    Sketcher.Constraint("DistanceX", 16, 2, 12, 2, 296.013199),
    Sketcher.Constraint("DistanceX", 19, 2, 10, 2, 102.460399),
    Sketcher.Constraint("DistanceY", 20, 2, 19, 2, 17.370701),
    Sketcher.Constraint("Distance", 6, 71.016281),
    Sketcher.Constraint("Distance", 7, 60.58105),
    Sketcher.Constraint("Distance", 8, 81.97391),
    Sketcher.Constraint("DistanceX", 1, 2, 1, 1, 146.472006),
    Sketcher.Constraint("DistanceY", -1, 1, 0, 2, 340.130851),
    Sketcher.Constraint("DistanceX", 1, 2, -1, 1, 319.392651),
    Sketcher.Constraint("DistanceX", 5, 2, -1, 1, 340.493259),
    Sketcher.Constraint("DistanceY", -1, 1, 5, 2, 334.652231),
    Sketcher.Constraint("DistanceY", -1, 1, 19, 2, 243.54279),
    Sketcher.Constraint("DistanceX", 20, 2, -1, 1, 624.86878),
    Sketcher.Constraint("DistanceY", 4, 2, 3, 2, 60.246869),
    Sketcher.Constraint("DistanceX", 4, 2, 0, 2, 204.283581),
    Sketcher.Constraint("DistanceY", 21, 2, 9, 2, 184.22028),
])
pad5 = doc.addObject("PartDesign::Pad", "Pad004")
body5.addObject(pad5)
pad5.Profile = sketch5
pad5.Length = Q("0.5 in")

doc.recompute()
